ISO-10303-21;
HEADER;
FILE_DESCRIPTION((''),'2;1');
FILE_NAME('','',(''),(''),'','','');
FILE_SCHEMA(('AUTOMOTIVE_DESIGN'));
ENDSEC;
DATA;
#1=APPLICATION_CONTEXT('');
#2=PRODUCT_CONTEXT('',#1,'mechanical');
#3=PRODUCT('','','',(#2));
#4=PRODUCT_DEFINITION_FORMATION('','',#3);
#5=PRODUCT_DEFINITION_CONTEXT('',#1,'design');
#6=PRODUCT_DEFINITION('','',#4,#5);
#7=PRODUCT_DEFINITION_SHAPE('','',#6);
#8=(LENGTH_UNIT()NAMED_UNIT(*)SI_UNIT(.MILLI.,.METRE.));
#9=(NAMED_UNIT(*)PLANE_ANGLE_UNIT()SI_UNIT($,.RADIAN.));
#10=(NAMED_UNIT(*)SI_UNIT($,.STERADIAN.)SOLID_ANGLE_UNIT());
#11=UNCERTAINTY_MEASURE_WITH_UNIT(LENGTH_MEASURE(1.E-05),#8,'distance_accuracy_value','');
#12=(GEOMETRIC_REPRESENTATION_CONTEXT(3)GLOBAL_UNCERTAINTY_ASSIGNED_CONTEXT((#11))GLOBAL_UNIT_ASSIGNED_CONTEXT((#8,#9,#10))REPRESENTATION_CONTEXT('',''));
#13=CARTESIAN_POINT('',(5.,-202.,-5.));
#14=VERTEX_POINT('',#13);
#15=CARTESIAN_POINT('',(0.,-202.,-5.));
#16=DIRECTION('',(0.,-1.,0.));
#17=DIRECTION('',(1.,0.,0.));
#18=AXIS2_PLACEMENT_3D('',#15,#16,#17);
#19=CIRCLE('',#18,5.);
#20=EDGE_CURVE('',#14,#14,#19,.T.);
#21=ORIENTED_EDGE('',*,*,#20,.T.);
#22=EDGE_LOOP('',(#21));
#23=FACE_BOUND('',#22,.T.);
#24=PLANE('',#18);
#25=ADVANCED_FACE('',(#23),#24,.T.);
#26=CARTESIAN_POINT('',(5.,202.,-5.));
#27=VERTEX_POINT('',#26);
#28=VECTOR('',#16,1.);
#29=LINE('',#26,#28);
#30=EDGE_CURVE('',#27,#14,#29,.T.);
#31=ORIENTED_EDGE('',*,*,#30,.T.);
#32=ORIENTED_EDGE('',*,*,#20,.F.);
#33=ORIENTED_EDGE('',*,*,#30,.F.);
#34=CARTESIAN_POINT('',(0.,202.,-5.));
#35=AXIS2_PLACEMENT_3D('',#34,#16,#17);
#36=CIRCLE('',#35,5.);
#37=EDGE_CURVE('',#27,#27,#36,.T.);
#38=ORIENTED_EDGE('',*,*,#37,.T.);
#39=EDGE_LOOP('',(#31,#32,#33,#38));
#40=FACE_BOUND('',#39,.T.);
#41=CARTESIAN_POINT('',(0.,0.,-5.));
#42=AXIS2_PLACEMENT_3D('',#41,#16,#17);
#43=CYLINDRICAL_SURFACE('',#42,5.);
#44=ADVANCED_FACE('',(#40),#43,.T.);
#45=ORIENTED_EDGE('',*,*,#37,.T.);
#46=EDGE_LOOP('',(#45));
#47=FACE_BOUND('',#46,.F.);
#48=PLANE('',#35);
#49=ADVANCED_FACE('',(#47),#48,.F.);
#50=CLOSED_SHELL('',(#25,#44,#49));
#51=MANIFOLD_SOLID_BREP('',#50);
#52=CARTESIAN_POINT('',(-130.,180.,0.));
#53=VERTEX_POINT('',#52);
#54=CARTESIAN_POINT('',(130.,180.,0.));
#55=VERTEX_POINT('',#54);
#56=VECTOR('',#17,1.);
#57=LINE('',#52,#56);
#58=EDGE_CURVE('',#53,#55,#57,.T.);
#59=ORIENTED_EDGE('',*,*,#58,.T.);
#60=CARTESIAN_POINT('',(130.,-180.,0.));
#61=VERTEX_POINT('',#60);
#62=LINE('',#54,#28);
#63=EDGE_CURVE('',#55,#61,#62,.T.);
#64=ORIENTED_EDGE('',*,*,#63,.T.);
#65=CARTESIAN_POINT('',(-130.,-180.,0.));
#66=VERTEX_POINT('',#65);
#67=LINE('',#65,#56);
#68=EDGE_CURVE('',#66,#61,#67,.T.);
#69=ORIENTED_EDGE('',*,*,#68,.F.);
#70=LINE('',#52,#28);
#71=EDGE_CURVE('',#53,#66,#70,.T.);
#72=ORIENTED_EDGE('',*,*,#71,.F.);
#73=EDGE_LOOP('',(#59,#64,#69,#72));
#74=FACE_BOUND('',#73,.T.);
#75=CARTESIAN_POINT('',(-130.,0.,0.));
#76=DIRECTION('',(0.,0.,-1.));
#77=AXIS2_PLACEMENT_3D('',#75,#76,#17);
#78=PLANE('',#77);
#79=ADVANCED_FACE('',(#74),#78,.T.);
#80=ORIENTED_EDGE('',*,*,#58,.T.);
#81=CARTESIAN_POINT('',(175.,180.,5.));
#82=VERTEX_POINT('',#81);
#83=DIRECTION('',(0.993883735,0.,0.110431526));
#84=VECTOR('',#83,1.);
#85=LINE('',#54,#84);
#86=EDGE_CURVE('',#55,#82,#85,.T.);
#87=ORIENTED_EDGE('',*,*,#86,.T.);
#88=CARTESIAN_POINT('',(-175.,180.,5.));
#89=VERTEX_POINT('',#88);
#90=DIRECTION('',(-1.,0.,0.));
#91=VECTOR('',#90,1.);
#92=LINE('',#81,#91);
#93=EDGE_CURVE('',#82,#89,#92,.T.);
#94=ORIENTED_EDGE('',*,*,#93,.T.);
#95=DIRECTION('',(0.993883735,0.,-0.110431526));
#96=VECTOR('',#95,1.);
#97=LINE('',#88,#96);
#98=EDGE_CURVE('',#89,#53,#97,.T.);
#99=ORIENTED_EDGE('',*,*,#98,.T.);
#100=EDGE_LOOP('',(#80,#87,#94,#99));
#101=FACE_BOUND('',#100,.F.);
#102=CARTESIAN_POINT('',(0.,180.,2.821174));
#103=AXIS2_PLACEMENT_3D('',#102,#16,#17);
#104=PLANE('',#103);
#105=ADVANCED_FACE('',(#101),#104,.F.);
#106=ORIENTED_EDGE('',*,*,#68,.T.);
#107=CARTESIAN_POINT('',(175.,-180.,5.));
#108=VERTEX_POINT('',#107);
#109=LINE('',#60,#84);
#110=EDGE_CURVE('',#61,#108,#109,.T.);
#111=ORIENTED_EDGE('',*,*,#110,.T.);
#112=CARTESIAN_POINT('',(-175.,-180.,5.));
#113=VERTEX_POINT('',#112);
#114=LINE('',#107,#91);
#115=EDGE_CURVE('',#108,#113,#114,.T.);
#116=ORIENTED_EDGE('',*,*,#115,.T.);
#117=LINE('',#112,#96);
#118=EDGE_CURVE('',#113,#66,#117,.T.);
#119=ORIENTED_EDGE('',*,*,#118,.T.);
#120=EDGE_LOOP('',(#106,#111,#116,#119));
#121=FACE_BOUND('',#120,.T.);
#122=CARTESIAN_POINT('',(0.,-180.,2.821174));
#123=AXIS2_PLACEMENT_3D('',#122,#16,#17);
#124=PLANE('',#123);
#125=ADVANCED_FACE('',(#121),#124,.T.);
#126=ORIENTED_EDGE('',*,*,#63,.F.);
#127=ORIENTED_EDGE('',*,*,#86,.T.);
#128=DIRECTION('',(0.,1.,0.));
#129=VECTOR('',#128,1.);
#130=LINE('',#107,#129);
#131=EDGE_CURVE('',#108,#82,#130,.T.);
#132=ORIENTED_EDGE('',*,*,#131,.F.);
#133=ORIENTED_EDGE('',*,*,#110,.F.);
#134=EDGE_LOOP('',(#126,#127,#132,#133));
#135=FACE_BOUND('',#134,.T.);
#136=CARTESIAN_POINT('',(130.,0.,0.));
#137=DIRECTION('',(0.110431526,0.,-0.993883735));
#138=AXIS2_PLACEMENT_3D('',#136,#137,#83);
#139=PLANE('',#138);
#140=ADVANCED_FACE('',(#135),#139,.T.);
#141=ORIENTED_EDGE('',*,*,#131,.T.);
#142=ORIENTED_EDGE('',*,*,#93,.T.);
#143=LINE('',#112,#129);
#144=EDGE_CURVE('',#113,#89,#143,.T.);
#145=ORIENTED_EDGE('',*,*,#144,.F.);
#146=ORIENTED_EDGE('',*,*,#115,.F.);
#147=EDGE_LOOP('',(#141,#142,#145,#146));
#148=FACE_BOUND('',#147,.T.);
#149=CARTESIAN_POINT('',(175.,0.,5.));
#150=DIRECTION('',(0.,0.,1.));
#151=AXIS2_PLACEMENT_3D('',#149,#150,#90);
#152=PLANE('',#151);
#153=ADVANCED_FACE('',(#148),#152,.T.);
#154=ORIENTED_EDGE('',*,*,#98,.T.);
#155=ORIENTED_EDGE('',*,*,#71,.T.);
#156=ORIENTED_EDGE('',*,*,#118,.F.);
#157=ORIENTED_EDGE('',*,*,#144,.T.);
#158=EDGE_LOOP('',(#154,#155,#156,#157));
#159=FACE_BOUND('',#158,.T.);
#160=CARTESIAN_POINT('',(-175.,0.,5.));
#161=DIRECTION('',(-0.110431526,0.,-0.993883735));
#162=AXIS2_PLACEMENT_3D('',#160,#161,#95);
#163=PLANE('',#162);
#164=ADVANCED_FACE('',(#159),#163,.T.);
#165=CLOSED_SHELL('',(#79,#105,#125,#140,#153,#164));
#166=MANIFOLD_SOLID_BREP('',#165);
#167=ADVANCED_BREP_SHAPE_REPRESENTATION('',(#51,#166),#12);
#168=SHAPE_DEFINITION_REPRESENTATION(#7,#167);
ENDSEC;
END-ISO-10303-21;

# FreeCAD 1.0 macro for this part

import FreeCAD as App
import Part
import Sketcher
Q = App.Units.Quantity


def add_polygon(sketch, points):
    """Adds a closed chain of lines whose ends are joined by coincident constraints."""
    first, n = sketch.GeometryCount, len(points)
    for a, b in zip(points, points[1:] + points[:1]):
        sketch.addGeometry(Part.LineSegment(App.Vector(*a, 0), App.Vector(*b, 0)), False)
    for i in range(n):
        sketch.addConstraint(Sketcher.Constraint("Coincident", first + i, 2, first + (i + 1) % n, 1))

doc = App.newDocument("Part")
body = doc.addObject("PartDesign::Body", "Body")

# Sketch on XZ plane
sketch1 = body.newObject("Sketcher::SketchObject", "Sketch")
sketch1.AttachmentSupport = (doc.getObject("XZ_Plane"), [""])
sketch1.MapMode = "FlatFace"
add_polygon(sketch1, [(-175, 5), (-130, 0), (130, 0), (175, 5)])  # lines 0-3
sketch1.addConstraint([
    Sketcher.Constraint("Horizontal", 1),
    Sketcher.Constraint("Horizontal", 3),
    Sketcher.Constraint("Symmetric", 0, 2, 1, 2, -1, 1),
    Sketcher.Constraint("Equal", 0, 2),
    Sketcher.Constraint("DistanceX", 1, 1, 1, 2, Q("260 mm")),
    Sketcher.Constraint("DistanceX", 3, 2, 3, 1, Q("350 mm")),
    Sketcher.Constraint("DistanceY", -1, 1, 2, 2, Q("5 mm")),
])
pad1 = body.newObject("PartDesign::Pad", "Pad")
pad1.Profile = sketch1
pad1.Length = 360
pad1.Midplane = True
body2 = doc.addObject("PartDesign::Body", "Body001")

# Sketch on XZ plane
sketch2 = body2.newObject("Sketcher::SketchObject", "Sketch001")
sketch2.AttachmentSupport = (doc.getObject("XZ_Plane001"), [""])
sketch2.MapMode = "FlatFace"
sketch2.addGeometry(Part.Circle(App.Vector(0, -5, 0), App.Vector(0, 0, 1), 5), False)
sketch2.addConstraint([
    Sketcher.Constraint("PointOnObject", 0, 3, -2),
    Sketcher.Constraint("Diameter", 0, Q("10 mm")),
    Sketcher.Constraint("DistanceY", 0, 3, -1, 1, Q("5 mm")),
])
pad2 = body2.newObject("PartDesign::Pad", "Pad001")
pad2.Profile = sketch2
pad2.Length = 404
pad2.Midplane = True

doc.recompute()
